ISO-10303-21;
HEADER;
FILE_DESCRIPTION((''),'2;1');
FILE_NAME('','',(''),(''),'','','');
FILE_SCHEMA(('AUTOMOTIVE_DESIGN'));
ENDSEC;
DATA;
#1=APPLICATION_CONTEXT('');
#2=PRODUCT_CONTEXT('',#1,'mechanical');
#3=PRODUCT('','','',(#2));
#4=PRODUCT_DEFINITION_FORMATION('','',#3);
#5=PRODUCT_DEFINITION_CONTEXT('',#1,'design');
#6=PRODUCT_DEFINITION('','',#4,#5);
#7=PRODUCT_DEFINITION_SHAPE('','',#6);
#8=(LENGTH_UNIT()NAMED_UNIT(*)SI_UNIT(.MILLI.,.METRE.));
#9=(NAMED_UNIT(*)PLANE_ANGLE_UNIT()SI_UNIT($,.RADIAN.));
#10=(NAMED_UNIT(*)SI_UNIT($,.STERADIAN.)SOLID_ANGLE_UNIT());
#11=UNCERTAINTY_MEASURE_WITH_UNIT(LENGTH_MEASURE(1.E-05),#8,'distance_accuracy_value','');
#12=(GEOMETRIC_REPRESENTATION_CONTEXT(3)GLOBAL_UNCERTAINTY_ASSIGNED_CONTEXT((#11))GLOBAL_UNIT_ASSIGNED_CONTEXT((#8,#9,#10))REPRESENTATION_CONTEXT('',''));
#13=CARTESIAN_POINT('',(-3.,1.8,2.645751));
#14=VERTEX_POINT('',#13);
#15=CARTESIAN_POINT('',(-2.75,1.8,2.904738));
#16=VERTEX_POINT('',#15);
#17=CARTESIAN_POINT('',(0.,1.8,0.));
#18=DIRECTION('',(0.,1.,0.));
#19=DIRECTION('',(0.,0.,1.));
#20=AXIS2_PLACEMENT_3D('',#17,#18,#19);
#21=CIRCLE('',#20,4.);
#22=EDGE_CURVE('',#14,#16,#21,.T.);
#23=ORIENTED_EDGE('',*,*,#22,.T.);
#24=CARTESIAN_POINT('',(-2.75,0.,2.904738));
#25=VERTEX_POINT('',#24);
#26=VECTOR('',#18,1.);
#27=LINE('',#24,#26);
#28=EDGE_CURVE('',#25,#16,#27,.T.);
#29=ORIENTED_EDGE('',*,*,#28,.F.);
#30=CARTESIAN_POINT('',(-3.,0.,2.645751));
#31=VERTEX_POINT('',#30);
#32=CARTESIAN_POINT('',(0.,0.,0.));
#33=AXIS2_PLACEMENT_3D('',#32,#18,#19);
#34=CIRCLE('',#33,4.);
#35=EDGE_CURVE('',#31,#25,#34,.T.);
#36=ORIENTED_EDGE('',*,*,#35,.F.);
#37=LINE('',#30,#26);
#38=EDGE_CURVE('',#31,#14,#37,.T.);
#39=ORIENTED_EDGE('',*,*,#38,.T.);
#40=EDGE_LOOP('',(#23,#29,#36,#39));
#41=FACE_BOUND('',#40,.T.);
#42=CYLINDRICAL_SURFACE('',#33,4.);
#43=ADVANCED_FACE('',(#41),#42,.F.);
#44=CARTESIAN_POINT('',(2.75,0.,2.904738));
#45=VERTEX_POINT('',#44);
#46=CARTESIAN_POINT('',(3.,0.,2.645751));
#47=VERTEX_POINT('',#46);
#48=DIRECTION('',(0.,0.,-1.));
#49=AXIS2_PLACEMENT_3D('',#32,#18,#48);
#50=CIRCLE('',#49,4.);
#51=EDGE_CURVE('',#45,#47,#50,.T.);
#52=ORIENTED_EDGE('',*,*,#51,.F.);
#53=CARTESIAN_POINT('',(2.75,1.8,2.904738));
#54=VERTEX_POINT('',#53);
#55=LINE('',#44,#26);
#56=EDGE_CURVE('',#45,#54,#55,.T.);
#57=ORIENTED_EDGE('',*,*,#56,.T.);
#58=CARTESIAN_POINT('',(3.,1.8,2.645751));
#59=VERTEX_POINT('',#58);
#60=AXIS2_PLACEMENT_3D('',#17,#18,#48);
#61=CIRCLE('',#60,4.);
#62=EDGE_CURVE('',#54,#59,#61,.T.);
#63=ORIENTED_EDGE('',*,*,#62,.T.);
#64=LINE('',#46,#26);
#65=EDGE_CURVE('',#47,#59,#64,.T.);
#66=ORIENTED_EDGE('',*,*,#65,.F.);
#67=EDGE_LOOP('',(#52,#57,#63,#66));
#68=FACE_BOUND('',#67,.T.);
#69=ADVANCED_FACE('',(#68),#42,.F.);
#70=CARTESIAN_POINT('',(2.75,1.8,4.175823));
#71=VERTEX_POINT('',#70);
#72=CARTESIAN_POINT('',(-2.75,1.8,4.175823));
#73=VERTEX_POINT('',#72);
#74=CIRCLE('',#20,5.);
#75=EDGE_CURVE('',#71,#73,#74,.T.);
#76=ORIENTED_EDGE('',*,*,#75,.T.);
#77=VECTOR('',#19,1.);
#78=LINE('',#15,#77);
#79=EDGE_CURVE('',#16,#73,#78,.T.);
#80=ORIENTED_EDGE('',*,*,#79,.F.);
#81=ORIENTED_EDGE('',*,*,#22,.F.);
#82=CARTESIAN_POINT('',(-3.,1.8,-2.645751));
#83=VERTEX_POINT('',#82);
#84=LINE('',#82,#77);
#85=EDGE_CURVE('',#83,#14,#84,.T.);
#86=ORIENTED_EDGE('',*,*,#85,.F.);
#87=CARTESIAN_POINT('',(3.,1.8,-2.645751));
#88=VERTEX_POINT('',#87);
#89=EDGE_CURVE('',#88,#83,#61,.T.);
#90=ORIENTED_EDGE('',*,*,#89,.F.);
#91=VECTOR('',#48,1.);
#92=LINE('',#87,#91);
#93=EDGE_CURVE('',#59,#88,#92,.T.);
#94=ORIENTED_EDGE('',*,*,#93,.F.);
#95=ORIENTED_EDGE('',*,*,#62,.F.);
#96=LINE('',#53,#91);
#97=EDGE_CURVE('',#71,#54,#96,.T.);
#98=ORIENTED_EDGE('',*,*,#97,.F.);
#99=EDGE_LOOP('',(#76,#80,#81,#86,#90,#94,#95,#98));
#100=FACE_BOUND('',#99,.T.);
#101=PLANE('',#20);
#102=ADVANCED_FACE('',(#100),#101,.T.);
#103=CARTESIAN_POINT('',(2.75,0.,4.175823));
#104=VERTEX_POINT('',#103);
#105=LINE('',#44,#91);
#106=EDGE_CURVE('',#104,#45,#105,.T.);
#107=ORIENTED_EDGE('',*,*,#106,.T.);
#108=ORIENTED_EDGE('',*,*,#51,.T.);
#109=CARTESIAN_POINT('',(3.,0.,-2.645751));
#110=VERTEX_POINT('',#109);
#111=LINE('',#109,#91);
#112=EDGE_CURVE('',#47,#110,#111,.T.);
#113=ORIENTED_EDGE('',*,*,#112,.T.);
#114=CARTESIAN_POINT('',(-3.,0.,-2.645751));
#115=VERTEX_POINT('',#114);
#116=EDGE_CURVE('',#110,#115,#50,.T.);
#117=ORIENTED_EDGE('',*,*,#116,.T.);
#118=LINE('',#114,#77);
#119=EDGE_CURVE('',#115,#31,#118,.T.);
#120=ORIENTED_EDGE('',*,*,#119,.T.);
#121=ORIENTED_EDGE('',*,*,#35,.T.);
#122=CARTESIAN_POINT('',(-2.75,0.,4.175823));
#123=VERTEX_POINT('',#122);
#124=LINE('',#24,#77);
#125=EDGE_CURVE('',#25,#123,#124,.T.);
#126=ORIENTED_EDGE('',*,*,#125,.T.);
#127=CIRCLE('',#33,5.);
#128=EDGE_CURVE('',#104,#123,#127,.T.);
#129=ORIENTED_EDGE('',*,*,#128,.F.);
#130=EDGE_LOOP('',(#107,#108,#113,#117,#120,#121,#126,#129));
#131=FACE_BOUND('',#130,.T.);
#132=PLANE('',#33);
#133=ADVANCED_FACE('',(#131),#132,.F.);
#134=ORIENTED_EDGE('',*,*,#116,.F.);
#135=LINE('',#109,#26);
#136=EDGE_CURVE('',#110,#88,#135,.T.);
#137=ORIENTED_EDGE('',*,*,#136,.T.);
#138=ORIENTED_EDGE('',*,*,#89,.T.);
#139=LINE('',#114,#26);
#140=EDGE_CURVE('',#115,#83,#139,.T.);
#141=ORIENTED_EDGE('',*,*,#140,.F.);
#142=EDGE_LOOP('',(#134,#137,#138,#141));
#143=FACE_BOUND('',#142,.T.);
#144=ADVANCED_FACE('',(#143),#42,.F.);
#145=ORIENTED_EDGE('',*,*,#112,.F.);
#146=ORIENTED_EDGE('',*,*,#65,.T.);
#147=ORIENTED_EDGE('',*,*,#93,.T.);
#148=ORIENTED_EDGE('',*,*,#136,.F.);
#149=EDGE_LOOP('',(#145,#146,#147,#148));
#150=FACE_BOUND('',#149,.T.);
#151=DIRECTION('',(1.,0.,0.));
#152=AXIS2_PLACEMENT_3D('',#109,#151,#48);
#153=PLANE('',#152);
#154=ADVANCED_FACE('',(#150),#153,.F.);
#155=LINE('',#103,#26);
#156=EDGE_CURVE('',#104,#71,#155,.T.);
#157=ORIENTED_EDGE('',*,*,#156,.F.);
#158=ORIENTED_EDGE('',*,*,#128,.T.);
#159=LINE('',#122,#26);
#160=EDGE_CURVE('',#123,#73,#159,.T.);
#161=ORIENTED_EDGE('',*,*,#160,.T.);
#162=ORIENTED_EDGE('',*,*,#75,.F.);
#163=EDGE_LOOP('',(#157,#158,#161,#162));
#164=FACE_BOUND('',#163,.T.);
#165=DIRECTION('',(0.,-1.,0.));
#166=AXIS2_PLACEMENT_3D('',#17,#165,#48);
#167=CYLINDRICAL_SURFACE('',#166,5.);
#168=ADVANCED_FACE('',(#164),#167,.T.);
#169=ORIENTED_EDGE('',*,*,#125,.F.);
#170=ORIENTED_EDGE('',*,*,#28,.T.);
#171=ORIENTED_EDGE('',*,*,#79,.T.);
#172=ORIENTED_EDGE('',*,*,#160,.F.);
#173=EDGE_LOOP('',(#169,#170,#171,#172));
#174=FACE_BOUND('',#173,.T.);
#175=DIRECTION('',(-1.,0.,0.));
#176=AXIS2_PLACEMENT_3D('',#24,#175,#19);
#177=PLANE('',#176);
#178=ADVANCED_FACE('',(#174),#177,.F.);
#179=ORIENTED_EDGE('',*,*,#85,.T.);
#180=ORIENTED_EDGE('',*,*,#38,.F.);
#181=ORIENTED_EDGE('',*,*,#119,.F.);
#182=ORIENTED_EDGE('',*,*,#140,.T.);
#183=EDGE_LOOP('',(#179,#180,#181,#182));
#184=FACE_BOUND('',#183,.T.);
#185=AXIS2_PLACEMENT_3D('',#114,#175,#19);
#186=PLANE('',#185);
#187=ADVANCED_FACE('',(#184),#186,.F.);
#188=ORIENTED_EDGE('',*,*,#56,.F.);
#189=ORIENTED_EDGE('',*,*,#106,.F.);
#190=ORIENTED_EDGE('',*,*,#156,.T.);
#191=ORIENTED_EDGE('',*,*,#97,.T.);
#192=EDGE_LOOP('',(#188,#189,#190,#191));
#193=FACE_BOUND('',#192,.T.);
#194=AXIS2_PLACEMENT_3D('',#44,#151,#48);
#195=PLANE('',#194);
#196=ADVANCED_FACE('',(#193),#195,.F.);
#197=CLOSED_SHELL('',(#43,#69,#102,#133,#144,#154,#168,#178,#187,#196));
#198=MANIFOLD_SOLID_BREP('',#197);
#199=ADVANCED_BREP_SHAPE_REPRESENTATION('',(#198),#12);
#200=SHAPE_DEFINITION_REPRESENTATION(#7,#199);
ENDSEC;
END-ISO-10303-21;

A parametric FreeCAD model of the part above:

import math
import FreeCAD as App
import Part
import Sketcher

V = App.Vector

doc = App.newDocument("Part")
body = doc.addObject("PartDesign::Body", "Body")

# Sketch on XZ plane
sketch1 = body.newObject("Sketcher::SketchObject", "Sketch")
sketch1.AttachmentSupport = (doc.getObject("XZ_Plane"), [""])
sketch1.MapMode = "FlatFace"
sketch1.addGeometry(Part.Circle(V(0, 0, 0), V(0, 0, 1), 5), False)
sketch1.addConstraint(Sketcher.Constraint("Coincident", 0, 3, -1, 1))
sketch1.addConstraint(Sketcher.Constraint("Diameter", 0, 10.0))
pad1 = body.newObject("PartDesign::Pad", "Pad")
pad1.Profile = sketch1
pad1.Length = 1.8
pad1.Reversed = True

# Sketch on XZ plane
sketch2 = body.newObject("Sketcher::SketchObject", "Sketch001")
sketch2.AttachmentSupport = (doc.getObject("XZ_Plane"), [""])
sketch2.MapMode = "FlatFace"
sketch2.AttachmentOffset = App.Placement(V(0, 0, -1.8), App.Rotation())
sketch2.addGeometry(Part.LineSegment(V(-3, -2.645751, 0), V(-3, 2.645751, 0)), False)
sketch2.addGeometry(Part.ArcOfCircle(Part.Circle(V(0, 0, 0), V(0, 0, 1), 4), math.radians(133.432537), math.radians(138.590378)), False)
sketch2.addGeometry(Part.LineSegment(V(-2.75, 2.904738, 0), V(-2.75, 4.175823, 0)), False)
sketch2.addGeometry(Part.ArcOfCircle(Part.Circle(V(0, 0, 0), V(0, 0, 1), 5), math.radians(56.632987), math.radians(123.367013)), False)
sketch2.addGeometry(Part.LineSegment(V(2.75, 4.175823, 0), V(2.75, 2.904738, 0)), False)
sketch2.addGeometry(Part.ArcOfCircle(Part.Circle(V(0, 0, 0), V(0, 0, 1), 4), math.radians(41.409622), math.radians(46.567463)), False)
sketch2.addGeometry(Part.LineSegment(V(3, 2.645751, 0), V(3, -2.645751, 0)), False)
sketch2.addGeometry(Part.ArcOfCircle(Part.Circle(V(0, 0, 0), V(0, 0, 1), 4), math.radians(-138.590378), math.radians(-41.409622)), False)
sketch2.addConstraint(Sketcher.Constraint("Coincident", 0, 2, 1, 2))
sketch2.addConstraint(Sketcher.Constraint("Coincident", 1, 1, 2, 1))
sketch2.addConstraint(Sketcher.Constraint("Coincident", 2, 2, 3, 2))
sketch2.addConstraint(Sketcher.Constraint("Coincident", 3, 1, 4, 1))
sketch2.addConstraint(Sketcher.Constraint("Coincident", 4, 2, 5, 2))
sketch2.addConstraint(Sketcher.Constraint("Coincident", 5, 1, 6, 1))
sketch2.addConstraint(Sketcher.Constraint("Coincident", 6, 2, 7, 2))
sketch2.addConstraint(Sketcher.Constraint("Coincident", 7, 1, 0, 1))
sketch2.addConstraint(Sketcher.Constraint("Vertical", 0))
sketch2.addConstraint(Sketcher.Constraint("Vertical", 2))
sketch2.addConstraint(Sketcher.Constraint("Vertical", 4))
sketch2.addConstraint(Sketcher.Constraint("Vertical", 6))
sketch2.addConstraint(Sketcher.Constraint("Coincident", 1, 3, -1, 1))
sketch2.addConstraint(Sketcher.Constraint("Coincident", 3, 3, -1, 1))
sketch2.addConstraint(Sketcher.Constraint("Coincident", 5, 3, -1, 1))
sketch2.addConstraint(Sketcher.Constraint("Coincident", 7, 3, -1, 1))
sketch2.addConstraint(Sketcher.Constraint("Equal", 1, 5))
sketch2.addConstraint(Sketcher.Constraint("Equal", 5, 7))
sketch2.addConstraint(Sketcher.Constraint("Horizontal", 2, 2, 3, 1))
sketch2.addConstraint(Sketcher.Constraint("Horizontal", 0, 2, 5, 1))
sketch2.addConstraint(Sketcher.Constraint("Radius", 1, 4.0))
sketch2.addConstraint(Sketcher.Constraint("Radius", 3, 5.0))
sketch2.addConstraint(Sketcher.Constraint("DistanceX", 0, 2, -1, 1, 3.0))
sketch2.addConstraint(Sketcher.Constraint("DistanceX", 2, 2, 3, 1, 5.5))
pocket1 = body.newObject("PartDesign::Pocket", "Pocket")
pocket1.Profile = sketch2
pocket1.Type = "ThroughAll"
pocket1.Reversed = True

doc.recompute()
